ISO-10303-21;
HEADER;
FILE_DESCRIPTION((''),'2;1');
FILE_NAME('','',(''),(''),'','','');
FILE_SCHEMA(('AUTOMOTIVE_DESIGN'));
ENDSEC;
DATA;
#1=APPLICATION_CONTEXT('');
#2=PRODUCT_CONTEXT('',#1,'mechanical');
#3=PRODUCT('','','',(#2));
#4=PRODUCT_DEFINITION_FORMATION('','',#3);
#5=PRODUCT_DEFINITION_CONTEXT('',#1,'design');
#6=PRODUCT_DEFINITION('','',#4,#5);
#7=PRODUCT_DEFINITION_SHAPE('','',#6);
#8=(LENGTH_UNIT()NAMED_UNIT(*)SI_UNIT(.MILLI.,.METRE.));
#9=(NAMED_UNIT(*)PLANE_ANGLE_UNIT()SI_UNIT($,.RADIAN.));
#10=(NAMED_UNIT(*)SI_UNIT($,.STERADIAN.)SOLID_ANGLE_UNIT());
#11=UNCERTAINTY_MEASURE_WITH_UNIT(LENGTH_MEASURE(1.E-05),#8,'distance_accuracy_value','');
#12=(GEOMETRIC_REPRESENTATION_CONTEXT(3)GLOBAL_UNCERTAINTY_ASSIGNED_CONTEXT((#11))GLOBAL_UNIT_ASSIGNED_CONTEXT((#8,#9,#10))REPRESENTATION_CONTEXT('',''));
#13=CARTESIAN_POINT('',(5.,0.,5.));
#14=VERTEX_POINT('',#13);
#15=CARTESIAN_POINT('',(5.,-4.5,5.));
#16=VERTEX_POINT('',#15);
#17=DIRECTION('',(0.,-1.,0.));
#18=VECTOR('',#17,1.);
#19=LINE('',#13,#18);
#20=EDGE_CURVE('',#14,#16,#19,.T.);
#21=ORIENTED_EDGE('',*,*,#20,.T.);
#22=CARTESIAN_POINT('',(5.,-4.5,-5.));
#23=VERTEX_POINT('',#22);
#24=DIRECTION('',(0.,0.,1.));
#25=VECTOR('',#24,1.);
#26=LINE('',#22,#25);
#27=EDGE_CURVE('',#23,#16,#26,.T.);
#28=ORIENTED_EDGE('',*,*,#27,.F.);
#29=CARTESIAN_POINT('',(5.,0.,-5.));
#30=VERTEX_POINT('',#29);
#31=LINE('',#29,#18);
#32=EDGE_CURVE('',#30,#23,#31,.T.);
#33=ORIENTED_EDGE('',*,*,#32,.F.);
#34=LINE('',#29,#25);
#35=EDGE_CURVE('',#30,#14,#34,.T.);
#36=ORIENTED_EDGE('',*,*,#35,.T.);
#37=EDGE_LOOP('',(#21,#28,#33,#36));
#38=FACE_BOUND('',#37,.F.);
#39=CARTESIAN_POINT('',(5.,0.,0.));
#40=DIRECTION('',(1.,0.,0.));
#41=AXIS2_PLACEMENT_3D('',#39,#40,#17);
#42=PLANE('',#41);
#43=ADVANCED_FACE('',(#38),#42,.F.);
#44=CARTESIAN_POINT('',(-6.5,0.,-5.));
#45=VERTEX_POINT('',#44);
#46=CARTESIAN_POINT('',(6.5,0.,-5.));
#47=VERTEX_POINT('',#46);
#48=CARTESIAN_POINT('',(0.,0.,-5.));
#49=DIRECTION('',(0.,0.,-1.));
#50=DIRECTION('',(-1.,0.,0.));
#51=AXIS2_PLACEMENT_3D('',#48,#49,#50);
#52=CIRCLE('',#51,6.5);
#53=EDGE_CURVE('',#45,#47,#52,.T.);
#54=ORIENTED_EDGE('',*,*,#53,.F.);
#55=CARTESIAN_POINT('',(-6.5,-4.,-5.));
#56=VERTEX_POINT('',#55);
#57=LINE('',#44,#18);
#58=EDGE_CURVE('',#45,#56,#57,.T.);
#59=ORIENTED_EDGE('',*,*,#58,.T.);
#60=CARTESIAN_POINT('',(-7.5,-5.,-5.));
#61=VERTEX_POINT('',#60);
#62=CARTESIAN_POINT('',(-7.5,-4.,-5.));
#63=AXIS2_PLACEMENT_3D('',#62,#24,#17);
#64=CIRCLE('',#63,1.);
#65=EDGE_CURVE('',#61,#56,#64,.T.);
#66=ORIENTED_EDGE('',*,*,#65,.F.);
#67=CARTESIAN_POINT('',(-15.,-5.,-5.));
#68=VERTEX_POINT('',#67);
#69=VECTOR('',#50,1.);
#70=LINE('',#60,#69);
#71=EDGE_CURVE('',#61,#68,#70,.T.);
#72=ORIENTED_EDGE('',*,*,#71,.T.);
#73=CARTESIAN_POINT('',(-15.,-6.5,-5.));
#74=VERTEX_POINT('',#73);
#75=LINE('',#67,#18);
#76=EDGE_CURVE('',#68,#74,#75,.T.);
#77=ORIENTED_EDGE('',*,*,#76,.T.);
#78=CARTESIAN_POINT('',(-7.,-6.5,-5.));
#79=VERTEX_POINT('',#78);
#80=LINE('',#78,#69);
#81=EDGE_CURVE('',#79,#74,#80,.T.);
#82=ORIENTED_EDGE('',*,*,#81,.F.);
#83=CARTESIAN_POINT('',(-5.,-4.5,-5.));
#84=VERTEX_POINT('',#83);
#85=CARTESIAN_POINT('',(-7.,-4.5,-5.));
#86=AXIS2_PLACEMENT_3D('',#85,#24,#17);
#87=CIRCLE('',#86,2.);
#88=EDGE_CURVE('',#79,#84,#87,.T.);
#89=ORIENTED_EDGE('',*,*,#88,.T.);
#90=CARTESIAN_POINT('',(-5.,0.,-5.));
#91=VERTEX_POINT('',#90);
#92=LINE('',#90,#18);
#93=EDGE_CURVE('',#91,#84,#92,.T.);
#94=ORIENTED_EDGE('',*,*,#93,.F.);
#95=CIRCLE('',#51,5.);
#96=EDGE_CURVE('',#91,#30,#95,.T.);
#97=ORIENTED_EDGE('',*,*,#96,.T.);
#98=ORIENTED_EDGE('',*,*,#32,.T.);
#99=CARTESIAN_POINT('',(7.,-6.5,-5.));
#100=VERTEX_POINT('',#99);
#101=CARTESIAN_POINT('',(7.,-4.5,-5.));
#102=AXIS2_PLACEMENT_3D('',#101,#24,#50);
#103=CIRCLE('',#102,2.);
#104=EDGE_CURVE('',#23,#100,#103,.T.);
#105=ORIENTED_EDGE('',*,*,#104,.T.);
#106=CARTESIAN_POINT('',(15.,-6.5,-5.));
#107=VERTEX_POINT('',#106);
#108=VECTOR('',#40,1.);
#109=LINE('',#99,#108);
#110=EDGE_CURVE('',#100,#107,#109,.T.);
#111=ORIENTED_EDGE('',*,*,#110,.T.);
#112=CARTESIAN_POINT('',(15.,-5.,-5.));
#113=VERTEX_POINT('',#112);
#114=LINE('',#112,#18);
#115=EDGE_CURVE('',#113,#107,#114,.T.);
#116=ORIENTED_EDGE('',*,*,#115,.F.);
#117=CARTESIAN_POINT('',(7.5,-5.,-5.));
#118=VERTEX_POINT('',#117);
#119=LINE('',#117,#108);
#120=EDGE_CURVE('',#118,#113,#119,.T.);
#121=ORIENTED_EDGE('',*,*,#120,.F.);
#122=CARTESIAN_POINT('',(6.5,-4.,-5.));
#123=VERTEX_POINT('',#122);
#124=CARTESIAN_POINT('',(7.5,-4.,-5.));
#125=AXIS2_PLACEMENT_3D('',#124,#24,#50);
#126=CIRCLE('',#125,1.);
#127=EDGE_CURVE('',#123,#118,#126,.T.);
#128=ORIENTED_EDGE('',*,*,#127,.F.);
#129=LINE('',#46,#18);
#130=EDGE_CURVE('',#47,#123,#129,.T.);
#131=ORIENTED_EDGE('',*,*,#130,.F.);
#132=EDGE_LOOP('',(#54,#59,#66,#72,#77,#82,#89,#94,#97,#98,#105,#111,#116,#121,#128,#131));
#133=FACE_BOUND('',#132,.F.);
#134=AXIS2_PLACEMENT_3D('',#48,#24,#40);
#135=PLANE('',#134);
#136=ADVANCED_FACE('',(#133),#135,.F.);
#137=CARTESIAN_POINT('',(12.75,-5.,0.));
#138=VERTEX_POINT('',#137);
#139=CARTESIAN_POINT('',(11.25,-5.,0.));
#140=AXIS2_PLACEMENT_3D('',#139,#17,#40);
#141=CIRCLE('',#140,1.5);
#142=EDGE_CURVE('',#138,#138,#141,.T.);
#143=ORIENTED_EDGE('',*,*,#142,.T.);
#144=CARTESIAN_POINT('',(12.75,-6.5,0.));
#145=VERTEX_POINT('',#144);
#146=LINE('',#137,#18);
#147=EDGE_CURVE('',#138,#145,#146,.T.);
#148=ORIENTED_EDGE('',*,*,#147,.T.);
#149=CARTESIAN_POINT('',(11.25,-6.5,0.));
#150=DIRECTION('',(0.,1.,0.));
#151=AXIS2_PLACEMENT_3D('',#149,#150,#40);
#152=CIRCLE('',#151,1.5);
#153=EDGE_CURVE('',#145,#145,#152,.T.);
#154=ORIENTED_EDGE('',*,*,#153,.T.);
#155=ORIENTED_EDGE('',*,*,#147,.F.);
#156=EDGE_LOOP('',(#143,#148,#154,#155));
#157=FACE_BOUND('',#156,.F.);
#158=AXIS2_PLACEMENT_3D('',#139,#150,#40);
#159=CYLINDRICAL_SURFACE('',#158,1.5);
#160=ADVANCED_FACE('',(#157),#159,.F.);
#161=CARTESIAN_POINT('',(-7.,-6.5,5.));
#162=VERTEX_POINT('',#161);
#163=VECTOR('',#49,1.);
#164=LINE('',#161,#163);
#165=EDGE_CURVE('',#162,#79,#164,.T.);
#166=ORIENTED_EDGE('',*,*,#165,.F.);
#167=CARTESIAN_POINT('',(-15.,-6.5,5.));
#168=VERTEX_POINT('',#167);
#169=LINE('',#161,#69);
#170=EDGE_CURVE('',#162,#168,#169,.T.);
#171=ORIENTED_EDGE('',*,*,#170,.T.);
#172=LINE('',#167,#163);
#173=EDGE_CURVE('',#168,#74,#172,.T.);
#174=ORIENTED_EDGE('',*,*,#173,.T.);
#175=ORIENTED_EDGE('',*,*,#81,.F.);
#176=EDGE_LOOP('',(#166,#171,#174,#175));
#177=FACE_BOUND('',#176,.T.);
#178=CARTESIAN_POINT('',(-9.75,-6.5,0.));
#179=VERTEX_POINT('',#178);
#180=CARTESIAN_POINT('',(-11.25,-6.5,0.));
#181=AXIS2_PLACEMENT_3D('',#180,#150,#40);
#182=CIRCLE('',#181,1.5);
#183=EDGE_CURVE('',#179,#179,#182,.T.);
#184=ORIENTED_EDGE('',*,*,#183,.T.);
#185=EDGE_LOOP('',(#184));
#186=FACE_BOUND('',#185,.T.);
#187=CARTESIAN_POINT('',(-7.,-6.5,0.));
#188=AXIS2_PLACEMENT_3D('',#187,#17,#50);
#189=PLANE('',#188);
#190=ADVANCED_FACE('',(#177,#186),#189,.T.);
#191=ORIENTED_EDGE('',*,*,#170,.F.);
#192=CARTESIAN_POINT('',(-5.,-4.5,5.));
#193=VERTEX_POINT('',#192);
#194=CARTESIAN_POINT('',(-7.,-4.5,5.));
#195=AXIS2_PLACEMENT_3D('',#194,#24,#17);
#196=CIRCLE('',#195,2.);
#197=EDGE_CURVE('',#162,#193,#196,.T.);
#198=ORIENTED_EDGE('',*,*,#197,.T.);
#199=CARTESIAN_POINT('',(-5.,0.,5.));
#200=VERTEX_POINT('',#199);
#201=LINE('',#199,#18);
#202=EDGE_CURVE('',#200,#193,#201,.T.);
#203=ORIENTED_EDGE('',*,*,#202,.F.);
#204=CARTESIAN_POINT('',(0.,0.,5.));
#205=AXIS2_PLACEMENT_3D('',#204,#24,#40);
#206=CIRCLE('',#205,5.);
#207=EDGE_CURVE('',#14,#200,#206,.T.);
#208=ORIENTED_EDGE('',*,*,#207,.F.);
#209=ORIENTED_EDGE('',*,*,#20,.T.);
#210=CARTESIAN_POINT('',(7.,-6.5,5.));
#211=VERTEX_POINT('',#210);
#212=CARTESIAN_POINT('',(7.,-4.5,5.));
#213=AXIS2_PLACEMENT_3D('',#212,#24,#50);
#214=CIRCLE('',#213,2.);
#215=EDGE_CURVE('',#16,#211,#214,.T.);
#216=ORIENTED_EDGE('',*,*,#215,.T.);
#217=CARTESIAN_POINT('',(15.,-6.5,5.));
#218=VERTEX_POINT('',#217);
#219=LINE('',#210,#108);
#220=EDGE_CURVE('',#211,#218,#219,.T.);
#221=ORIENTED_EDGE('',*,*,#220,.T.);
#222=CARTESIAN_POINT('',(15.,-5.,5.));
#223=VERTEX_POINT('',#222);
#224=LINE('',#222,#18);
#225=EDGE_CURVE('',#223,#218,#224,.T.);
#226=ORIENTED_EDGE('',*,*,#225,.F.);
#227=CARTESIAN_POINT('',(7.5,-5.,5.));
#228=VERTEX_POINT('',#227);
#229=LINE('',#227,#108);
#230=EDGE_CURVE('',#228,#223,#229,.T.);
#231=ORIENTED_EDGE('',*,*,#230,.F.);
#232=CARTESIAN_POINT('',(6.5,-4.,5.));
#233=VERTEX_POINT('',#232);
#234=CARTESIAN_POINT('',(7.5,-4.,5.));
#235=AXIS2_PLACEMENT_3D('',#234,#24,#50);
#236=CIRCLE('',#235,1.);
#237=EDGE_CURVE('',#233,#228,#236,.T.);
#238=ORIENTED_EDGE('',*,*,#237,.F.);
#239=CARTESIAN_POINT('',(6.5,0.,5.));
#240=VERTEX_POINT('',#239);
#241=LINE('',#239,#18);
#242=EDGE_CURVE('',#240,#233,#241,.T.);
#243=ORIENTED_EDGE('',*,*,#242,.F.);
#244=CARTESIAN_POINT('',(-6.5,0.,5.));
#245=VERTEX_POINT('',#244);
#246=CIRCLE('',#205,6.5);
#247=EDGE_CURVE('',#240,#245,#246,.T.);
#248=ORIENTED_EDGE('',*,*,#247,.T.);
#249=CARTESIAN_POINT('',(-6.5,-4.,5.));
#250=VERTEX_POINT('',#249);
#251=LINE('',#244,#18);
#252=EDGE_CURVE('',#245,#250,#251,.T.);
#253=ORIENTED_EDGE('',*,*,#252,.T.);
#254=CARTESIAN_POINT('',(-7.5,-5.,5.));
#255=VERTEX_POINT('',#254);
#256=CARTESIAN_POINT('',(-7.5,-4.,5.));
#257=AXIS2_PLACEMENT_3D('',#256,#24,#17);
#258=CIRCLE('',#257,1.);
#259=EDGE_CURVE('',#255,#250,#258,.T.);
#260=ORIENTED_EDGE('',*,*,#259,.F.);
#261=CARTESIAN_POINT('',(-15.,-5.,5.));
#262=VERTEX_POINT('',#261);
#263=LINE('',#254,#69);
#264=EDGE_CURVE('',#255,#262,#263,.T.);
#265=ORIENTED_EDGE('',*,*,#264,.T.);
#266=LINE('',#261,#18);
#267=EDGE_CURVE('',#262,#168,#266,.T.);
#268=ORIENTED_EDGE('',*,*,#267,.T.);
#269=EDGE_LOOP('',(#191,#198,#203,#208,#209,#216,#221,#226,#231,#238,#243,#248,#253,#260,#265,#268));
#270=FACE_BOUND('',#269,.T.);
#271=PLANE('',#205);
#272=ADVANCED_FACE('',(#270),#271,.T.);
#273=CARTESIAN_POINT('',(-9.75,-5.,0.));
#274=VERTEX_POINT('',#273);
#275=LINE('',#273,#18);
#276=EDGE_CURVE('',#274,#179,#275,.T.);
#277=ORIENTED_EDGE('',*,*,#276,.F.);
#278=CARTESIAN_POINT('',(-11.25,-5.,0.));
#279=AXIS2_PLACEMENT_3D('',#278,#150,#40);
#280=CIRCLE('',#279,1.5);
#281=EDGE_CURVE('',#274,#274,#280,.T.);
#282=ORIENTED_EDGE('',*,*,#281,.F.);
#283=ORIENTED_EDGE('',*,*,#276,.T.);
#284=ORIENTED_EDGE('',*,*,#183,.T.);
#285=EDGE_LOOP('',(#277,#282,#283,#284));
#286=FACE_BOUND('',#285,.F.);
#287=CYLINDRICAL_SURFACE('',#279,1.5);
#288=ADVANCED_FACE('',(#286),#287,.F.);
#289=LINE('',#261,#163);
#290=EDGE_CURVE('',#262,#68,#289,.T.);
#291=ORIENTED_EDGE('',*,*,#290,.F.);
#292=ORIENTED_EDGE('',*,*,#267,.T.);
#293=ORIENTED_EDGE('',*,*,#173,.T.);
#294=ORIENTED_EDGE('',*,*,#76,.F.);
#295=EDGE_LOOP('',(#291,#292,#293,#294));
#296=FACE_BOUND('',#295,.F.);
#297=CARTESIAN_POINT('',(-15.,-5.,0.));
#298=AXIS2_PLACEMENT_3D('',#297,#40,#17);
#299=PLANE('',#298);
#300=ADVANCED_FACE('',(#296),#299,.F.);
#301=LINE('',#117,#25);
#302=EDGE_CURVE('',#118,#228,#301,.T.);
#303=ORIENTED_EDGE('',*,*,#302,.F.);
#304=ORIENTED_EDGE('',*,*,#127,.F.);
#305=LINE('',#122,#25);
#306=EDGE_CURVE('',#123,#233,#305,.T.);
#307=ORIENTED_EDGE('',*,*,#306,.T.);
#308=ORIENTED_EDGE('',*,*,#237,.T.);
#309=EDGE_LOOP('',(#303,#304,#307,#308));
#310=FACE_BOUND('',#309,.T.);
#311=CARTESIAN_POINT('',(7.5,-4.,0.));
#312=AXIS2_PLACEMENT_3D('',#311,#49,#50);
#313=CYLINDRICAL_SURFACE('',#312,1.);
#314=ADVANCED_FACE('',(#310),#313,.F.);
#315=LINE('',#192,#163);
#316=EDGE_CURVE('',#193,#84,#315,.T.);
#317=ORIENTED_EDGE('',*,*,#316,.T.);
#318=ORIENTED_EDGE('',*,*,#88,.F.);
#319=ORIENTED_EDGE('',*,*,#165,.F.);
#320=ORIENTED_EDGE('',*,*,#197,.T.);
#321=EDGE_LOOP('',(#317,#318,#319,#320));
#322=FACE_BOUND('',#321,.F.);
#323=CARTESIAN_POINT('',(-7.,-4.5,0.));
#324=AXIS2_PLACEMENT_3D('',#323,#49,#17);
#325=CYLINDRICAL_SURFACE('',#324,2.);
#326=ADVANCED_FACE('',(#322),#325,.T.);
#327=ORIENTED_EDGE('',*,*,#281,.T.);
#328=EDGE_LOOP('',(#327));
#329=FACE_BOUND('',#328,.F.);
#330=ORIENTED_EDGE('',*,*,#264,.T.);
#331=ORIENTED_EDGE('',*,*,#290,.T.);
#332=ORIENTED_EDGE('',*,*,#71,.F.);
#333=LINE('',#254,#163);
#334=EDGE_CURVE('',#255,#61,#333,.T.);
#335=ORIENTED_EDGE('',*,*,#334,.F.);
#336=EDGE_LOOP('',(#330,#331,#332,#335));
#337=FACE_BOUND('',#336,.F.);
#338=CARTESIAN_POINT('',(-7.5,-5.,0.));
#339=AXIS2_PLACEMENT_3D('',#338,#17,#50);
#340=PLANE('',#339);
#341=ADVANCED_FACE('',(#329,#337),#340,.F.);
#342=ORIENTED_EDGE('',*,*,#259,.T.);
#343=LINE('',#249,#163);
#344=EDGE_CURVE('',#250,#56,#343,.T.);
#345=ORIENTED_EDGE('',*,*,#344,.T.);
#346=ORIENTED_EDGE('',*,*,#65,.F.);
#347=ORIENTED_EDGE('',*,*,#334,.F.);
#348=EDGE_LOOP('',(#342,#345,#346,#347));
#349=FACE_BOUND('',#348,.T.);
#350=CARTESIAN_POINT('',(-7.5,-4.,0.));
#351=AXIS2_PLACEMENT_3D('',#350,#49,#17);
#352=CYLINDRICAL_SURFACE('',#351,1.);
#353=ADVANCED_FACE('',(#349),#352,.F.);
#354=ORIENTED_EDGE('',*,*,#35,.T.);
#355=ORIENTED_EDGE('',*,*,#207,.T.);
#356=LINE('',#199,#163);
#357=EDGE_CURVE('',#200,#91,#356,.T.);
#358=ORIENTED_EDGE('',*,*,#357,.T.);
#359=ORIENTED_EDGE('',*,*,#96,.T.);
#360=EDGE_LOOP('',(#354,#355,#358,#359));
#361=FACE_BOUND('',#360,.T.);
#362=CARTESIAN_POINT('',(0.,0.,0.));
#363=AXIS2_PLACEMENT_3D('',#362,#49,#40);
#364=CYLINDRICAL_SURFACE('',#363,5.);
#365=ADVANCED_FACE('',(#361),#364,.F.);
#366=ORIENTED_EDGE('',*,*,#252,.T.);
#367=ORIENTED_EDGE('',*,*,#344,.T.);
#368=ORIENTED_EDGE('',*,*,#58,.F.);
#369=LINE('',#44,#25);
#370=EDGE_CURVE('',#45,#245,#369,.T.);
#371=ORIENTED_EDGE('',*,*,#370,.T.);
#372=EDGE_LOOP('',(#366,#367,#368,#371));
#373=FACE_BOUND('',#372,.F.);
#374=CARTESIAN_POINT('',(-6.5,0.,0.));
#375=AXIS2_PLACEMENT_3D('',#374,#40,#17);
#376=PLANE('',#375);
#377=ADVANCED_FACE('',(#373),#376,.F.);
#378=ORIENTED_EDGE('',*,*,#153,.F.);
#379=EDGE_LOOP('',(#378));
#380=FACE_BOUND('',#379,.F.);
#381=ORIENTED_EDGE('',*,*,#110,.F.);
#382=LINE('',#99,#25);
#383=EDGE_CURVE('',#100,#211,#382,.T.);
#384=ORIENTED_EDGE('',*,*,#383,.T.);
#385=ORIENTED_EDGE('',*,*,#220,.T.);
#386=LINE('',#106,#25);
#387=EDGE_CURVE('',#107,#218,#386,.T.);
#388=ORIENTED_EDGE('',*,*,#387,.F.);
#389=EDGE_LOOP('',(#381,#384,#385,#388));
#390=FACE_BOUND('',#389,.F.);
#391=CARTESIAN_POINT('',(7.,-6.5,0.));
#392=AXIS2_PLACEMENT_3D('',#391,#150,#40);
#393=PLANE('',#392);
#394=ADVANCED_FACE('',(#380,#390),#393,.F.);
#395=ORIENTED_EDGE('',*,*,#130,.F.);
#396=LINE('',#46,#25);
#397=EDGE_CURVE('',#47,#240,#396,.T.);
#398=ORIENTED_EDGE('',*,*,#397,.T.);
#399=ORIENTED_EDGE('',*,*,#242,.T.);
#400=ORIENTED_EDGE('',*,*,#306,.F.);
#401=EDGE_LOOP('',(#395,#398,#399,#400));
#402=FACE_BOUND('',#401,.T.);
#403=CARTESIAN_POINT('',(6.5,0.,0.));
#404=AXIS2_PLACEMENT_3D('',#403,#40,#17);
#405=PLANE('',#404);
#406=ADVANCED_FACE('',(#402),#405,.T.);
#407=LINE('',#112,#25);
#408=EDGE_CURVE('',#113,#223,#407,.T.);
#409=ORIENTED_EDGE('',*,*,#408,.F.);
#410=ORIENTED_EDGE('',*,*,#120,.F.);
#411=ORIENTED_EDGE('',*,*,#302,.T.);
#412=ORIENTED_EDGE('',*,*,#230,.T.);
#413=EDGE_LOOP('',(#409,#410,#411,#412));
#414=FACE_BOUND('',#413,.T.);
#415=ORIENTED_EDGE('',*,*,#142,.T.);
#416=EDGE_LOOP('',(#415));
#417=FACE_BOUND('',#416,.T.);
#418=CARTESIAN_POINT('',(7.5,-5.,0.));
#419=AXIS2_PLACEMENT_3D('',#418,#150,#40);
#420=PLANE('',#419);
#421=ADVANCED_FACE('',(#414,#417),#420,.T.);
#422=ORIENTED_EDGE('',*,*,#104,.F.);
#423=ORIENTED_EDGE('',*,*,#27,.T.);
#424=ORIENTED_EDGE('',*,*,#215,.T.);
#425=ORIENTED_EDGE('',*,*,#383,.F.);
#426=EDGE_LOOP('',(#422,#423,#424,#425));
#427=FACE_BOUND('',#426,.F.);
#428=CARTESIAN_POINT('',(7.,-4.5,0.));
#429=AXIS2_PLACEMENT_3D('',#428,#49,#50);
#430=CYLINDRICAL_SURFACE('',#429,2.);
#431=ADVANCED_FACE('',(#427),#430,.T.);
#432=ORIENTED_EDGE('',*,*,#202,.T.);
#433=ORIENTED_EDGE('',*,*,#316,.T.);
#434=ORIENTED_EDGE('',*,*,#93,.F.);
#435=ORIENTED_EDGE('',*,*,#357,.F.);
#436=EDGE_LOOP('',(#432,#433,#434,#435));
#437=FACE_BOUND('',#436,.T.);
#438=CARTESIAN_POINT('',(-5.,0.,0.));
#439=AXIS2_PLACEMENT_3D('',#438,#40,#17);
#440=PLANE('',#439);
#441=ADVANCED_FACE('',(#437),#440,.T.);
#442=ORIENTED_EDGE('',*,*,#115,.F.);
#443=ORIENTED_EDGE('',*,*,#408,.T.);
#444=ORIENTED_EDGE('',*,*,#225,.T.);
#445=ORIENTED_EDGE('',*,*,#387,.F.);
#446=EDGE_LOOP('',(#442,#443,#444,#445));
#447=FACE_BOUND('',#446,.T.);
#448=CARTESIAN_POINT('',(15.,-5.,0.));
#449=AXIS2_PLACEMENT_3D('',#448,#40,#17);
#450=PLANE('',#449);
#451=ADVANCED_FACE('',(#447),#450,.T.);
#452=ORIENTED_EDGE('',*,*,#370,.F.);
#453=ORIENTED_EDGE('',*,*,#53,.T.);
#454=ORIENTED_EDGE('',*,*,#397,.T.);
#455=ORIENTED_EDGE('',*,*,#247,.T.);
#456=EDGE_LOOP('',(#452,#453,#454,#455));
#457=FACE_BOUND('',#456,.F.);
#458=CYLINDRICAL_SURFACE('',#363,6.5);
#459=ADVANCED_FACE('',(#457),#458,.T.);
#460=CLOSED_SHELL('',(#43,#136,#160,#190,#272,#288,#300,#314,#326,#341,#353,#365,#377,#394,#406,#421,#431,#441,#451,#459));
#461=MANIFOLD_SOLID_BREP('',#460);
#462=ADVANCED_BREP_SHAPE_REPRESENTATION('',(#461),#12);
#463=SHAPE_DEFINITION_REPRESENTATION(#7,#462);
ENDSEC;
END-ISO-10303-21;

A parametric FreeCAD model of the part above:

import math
import FreeCAD as App
import Part
import Sketcher

V = App.Vector

doc = App.newDocument("Part")
body = doc.addObject("PartDesign::Body", "Body")

# Sketch on XY plane
sketch1 = doc.addObject("Sketcher::SketchObject", "Sketch")
body.addObject(sketch1)
sketch1.AttachmentSupport = (doc.XY_Plane, [""])
sketch1.MapMode = "FlatFace"
sketch1.addGeometry([
    Part.ArcOfCircle(Part.Circle(V(0, 0, 0), V(0, 0, 1), 5), math.radians(0), math.radians(180)),  # 0
    Part.LineSegment(V(5, 0, 0), V(5, -4.5, 0)),  # 1
    Part.ArcOfCircle(Part.Circle(V(7, -4.5, 0), V(0, 0, 1), 2), math.radians(180), math.radians(270)),  # 2
    Part.LineSegment(V(7, -6.5, 0), V(15, -6.5, 0)),  # 3
    Part.LineSegment(V(15, -6.5, 0), V(15, -5, 0)),  # 4
    Part.LineSegment(V(15, -5, 0), V(7.5, -5, 0)),  # 5
    Part.ArcOfCircle(Part.Circle(V(7.5, -4, 0), V(0, 0, 1), 1), math.radians(180), math.radians(270)),  # 6
    Part.LineSegment(V(6.5, -4, 0), V(6.5, 0, 0)),  # 7
    Part.ArcOfCircle(Part.Circle(V(0, 0, 0), V(0, 0, 1), 6.5), math.radians(0), math.radians(180)),  # 8
    Part.LineSegment(V(-6.5, 0, 0), V(-6.5, -4, 0)),  # 9
    Part.ArcOfCircle(Part.Circle(V(-7.5, -4, 0), V(0, 0, 1), 1), math.radians(-90), math.radians(0)),  # 10
    Part.LineSegment(V(-7.5, -5, 0), V(-15, -5, 0)),  # 11
    Part.LineSegment(V(-15, -5, 0), V(-15, -6.5, 0)),  # 12
    Part.LineSegment(V(-15, -6.5, 0), V(-7, -6.5, 0)),  # 13
    Part.ArcOfCircle(Part.Circle(V(-7, -4.5, 0), V(0, 0, 1), 2), math.radians(-90), math.radians(0)),  # 14
    Part.LineSegment(V(-5, -4.5, 0), V(-5, 0, 0)),  # 15
], False)
sketch1.addConstraint([
    Sketcher.Constraint("Tangent", 0, 1, 1, 1),
    Sketcher.Constraint("Tangent", 1, 2, 2, 1),
    Sketcher.Constraint("Tangent", 2, 2, 3, 1),
    Sketcher.Constraint("Coincident", 3, 2, 4, 1),
    Sketcher.Constraint("Coincident", 4, 2, 5, 1),
    Sketcher.Constraint("Tangent", 5, 2, 6, 2),
    Sketcher.Constraint("Tangent", 6, 1, 7, 1),
    Sketcher.Constraint("Tangent", 7, 2, 8, 1),
    Sketcher.Constraint("Tangent", 8, 2, 9, 1),
    Sketcher.Constraint("Tangent", 9, 2, 10, 2),
    Sketcher.Constraint("Tangent", 10, 1, 11, 1),
    Sketcher.Constraint("Coincident", 11, 2, 12, 1),
    Sketcher.Constraint("Coincident", 12, 2, 13, 1),
    Sketcher.Constraint("Tangent", 13, 2, 14, 1),
    Sketcher.Constraint("Tangent", 14, 2, 15, 1),
    Sketcher.Constraint("Tangent", 15, 2, 0, 2),
    Sketcher.Constraint("Vertical", 1),
    Sketcher.Constraint("Horizontal", 3),
    Sketcher.Constraint("Vertical", 4),
    Sketcher.Constraint("Horizontal", 5),
    Sketcher.Constraint("Vertical", 7),
    Sketcher.Constraint("Vertical", 9),
    Sketcher.Constraint("Horizontal", 11),
    Sketcher.Constraint("Vertical", 12),
    Sketcher.Constraint("Horizontal", 13),
    Sketcher.Constraint("Vertical", 15),
    Sketcher.Constraint("Coincident", 0, 3, -1, 1),
    Sketcher.Constraint("Coincident", 8, 3, -1, 1),
    Sketcher.Constraint("Equal", 6, 10),
    Sketcher.Constraint("Equal", 2, 14),
    Sketcher.Constraint("Symmetric", 4, 2, 11, 2, -2),
    Sketcher.Constraint("Horizontal", 2, 3, 14, 3),
    Sketcher.Constraint("Radius", 0, 5.0),
    Sketcher.Constraint("Radius", 2, 2.0),
    Sketcher.Constraint("Radius", 6, 1.0),
    Sketcher.Constraint("DistanceY", 4, 1, 4, 2, 1.5),
    Sketcher.Constraint("DistanceX", 1, 2, 3, 2, 10.0),
    Sketcher.Constraint("Radius", 8, 6.5),
    Sketcher.Constraint("DistanceY", 7, 1, 7, 2, 4.0),
])
pad1 = doc.addObject("PartDesign::Pad", "Pad")
body.addObject(pad1)
pad1.Profile = sketch1
pad1.Length = 10
pad1.Midplane = True

# Sketch on XZ plane
sketch2 = doc.addObject("Sketcher::SketchObject", "Sketch001")
body.addObject(sketch2)
sketch2.AttachmentSupport = (doc.XZ_Plane, [""])
sketch2.MapMode = "FlatFace"
sketch2.AttachmentOffset = App.Placement(V(0, 0, 5), App.Rotation())
sketch2.addGeometry([
    Part.Circle(V(-11.2, 0, 0), V(0, 0, 1), 1.5),
    Part.Circle(V(11.2, 0, 0), V(0, 0, 1), 1.5),
], False)
sketch2.addConstraint([
    Sketcher.Constraint("Equal", 0, 1),
    Sketcher.Constraint("Symmetric", 0, 3, 1, 3, -1, 1),
    Sketcher.Constraint("PointOnObject", 0, 3, -1),
    Sketcher.Constraint("Diameter", 0, 3.0),
    Sketcher.Constraint("DistanceX", 0, 3, 1, 3, 22.5),
])
pocket1 = doc.addObject("PartDesign::Pocket", "Pocket")
body.addObject(pocket1)
pocket1.Profile = sketch2
pocket1.Length = 1.5
pocket1.Reversed = True

doc.recompute()
